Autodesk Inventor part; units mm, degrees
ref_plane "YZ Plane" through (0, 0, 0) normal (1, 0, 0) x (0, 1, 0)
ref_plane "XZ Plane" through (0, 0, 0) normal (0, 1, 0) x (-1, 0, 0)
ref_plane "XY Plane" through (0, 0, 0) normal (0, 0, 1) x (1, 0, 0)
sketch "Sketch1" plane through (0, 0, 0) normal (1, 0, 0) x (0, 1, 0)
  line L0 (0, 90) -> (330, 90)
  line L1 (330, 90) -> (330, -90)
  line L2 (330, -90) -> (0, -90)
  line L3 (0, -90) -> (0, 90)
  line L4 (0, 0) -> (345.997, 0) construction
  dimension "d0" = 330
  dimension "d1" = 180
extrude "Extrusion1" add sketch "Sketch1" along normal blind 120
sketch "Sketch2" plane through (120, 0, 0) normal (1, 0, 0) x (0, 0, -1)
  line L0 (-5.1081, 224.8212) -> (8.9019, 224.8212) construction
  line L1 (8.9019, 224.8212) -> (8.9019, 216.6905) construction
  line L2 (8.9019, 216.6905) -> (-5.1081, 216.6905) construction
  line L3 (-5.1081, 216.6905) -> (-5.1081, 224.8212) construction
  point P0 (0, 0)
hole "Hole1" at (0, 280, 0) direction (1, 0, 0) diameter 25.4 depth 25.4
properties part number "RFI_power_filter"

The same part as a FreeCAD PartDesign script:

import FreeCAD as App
import Part
import Sketcher


def add_polygon(sketch, points):
    """Adds a closed chain of lines whose ends are joined by coincident constraints."""
    first, n = sketch.GeometryCount, len(points)
    for a, b in zip(points, points[1:] + points[:1]):
        sketch.addGeometry(Part.LineSegment(App.Vector(*a, 0), App.Vector(*b, 0)), False)
    for i in range(n):
        sketch.addConstraint(Sketcher.Constraint("Coincident", first + i, 2, first + (i + 1) % n, 1))

doc = App.newDocument("Part")
params = doc.addObject("Spreadsheet::Sheet", "Params")
for row, (alias, value) in enumerate([
    ("sketch1_width", "330 mm"),
    ("sketch1_height", "180 mm"),
    ("pad1_length", "120 mm"),
    ("sketch2_diameter", "25.4 mm"),
    ("hole_diameter", "25.4 mm"),
    ("hole_depth", "25.4 mm"),
], start=1):
    params.set(f"A{row}", alias)
    params.set(f"B{row}", "=" + value)
    params.setAlias(f"B{row}", alias)

body = doc.addObject("PartDesign::Body", "Body")

# Sketch on YZ plane
sketch1 = body.newObject("Sketcher::SketchObject", "Sketch")
sketch1.AttachmentSupport = (doc.getObject("YZ_Plane"), [""])
sketch1.MapMode = "FlatFace"
add_polygon(sketch1, [(330, 90), (0, 90), (0, -90), (330, -90)])  # lines 0-3
sketch1.addConstraint([
    Sketcher.Constraint("Horizontal", 0),
    Sketcher.Constraint("Vertical", 1),
    Sketcher.Constraint("Horizontal", 2),
    Sketcher.Constraint("Vertical", 3),
    Sketcher.Constraint("Symmetric", 0, 2, 1, 2, -1, 1),
    Sketcher.Constraint("DistanceX", 0, 2, 0, 1, 330.0),
    Sketcher.Constraint("DistanceY", 1, 2, 1, 1, 180.0),
])
sketch1.setExpression("Constraints[9]", "Params.sketch1_width")
sketch1.setExpression("Constraints[10]", "Params.sketch1_height")
pad1 = body.newObject("PartDesign::Pad", "Pad")
pad1.Profile = sketch1
pad1.setExpression("Length", "Params.pad1_length")

# Sketch on YZ plane
sketch2 = body.newObject("Sketcher::SketchObject", "Sketch001")
sketch2.AttachmentSupport = (doc.getObject("YZ_Plane"), [""])
sketch2.MapMode = "FlatFace"
sketch2.addGeometry(Part.Circle(App.Vector(280, 0, 0), App.Vector(0, 0, 1), 13), False)
sketch2.addConstraint([
    Sketcher.Constraint("PointOnObject", 0, 3, -1),
    Sketcher.Constraint("Diameter", 0, 25.4),
    Sketcher.Constraint("DistanceX", -1, 1, 0, 3, 280.0),
])
sketch2.setExpression("Constraints[1]", "Params.sketch2_diameter")
doc.recompute()
hole = body.newObject("PartDesign::Hole", "Hole")
hole.Profile = sketch2
hole.ThreadType = "None"
hole.setExpression("Diameter", "Params.hole_diameter")
hole.DepthType = "Dimension"
hole.setExpression("Depth", "Params.hole_depth")
hole.DrillPoint = "Flat"
hole.Reversed = True

doc.recompute()
